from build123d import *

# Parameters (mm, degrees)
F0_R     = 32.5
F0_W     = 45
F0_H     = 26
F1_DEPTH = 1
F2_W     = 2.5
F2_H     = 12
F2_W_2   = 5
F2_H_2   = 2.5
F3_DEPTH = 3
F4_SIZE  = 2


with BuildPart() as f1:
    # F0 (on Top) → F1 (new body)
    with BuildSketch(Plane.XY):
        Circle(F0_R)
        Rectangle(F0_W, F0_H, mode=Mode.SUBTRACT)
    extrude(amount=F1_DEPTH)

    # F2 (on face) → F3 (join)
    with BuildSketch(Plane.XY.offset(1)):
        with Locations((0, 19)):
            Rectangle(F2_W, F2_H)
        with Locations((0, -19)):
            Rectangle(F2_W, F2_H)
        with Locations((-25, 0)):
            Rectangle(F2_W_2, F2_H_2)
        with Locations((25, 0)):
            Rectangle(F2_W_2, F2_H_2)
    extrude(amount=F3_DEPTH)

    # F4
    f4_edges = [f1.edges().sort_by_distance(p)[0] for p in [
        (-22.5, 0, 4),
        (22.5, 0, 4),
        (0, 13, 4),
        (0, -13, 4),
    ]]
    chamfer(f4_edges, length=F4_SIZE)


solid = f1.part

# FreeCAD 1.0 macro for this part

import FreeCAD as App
import Part
import Sketcher

V = App.Vector
Q = App.Units.Quantity


def edges_at(feature, points):
    """Names of the edges that pass closest to the given points."""
    edges = feature.Shape.Edges
    near = lambda p: min(range(len(edges)), key=lambda i: edges[i].distToShape(Part.Vertex(*p))[0])
    return sorted({f"Edge{near(p) + 1}" for p in points})

doc = App.newDocument("Part")
body = doc.addObject("PartDesign::Body", "Body")

# Sketch on XY plane
sketch1 = body.newObject("Sketcher::SketchObject", "Sketch")
sketch1.AttachmentSupport = (doc.getObject("XY_Plane"), [""])
sketch1.MapMode = "FlatFace"
sketch1.addGeometry([
    Part.Circle(V(0, 0, 0), V(0, 0, 1), 32),  # 0
    Part.LineSegment(V(22, -13, 0), V(-22, -13, 0)),  # 1
    Part.LineSegment(V(-22, -13, 0), V(-22, 13, 0)),  # 2
    Part.LineSegment(V(-22, 13, 0), V(22, 13, 0)),  # 3
    Part.LineSegment(V(22, 13, 0), V(22, -13, 0)),  # 4
], False)
sketch1.addConstraint([
    Sketcher.Constraint("Coincident", 1, 2, 2, 1),
    Sketcher.Constraint("Coincident", 2, 2, 3, 1),
    Sketcher.Constraint("Coincident", 3, 2, 4, 1),
    Sketcher.Constraint("Coincident", 4, 2, 1, 1),
    Sketcher.Constraint("Horizontal", 1),
    Sketcher.Constraint("Vertical", 2),
    Sketcher.Constraint("Horizontal", 3),
    Sketcher.Constraint("Vertical", 4),
    Sketcher.Constraint("Coincident", 0, 3, -1, 1),
    Sketcher.Constraint("Symmetric", 1, 2, 3, 2, -1, 1),
    Sketcher.Constraint("Diameter", 0, Q("65 mm")),
    Sketcher.Constraint("DistanceX", 1, 2, 1, 1, Q("45 mm")),
    Sketcher.Constraint("DistanceY", 2, 1, 2, 2, Q("26 mm")),
])
pad1 = body.newObject("PartDesign::Pad", "Pad")
pad1.Profile = sketch1
pad1.Length = 1

# Sketch on XY plane
sketch2 = body.newObject("Sketcher::SketchObject", "Sketch001")
sketch2.AttachmentSupport = (doc.getObject("XY_Plane"), [""])
sketch2.MapMode = "FlatFace"
sketch2.AttachmentOffset = App.Placement(V(0, 0, 1), App.Rotation())
sketch2.addGeometry([
    Part.LineSegment(V(-1.2, 25, 0), V(-1.2, 13, 0)),  # 0
    Part.LineSegment(V(-1.2, 13, 0), V(1.2, 13, 0)),  # 1
    Part.LineSegment(V(1.2, 13, 0), V(1.2, 25, 0)),  # 2
    Part.LineSegment(V(1.2, 25, 0), V(-1.2, 25, 0)),  # 3
    Part.LineSegment(V(-1.2, -13, 0), V(-1.2, -25, 0)),  # 4
    Part.LineSegment(V(-1.2, -25, 0), V(1.2, -25, 0)),  # 5
    Part.LineSegment(V(1.2, -25, 0), V(1.2, -13, 0)),  # 6
    Part.LineSegment(V(1.2, -13, 0), V(-1.2, -13, 0)),  # 7
    Part.LineSegment(V(-27.5, 1.2, 0), V(-27.5, -1.2, 0)),  # 8
    Part.LineSegment(V(-27.5, -1.2, 0), V(-22.5, -1.2, 0)),  # 9
    Part.LineSegment(V(-22.5, -1.2, 0), V(-22.5, 1.2, 0)),  # 10
    Part.LineSegment(V(-22.5, 1.2, 0), V(-27.5, 1.2, 0)),  # 11
    Part.LineSegment(V(22.5, 1.2, 0), V(22.5, -1.2, 0)),  # 12
    Part.LineSegment(V(22.5, -1.2, 0), V(27.5, -1.2, 0)),  # 13
    Part.LineSegment(V(27.5, -1.2, 0), V(27.5, 1.2, 0)),  # 14
    Part.LineSegment(V(27.5, 1.2, 0), V(22.5, 1.2, 0)),  # 15
], False)
sketch2.addConstraint([
    Sketcher.Constraint("Coincident", 0, 2, 1, 1),
    Sketcher.Constraint("Coincident", 1, 2, 2, 1),
    Sketcher.Constraint("Coincident", 2, 2, 3, 1),
    Sketcher.Constraint("Coincident", 3, 2, 0, 1),
    Sketcher.Constraint("Coincident", 4, 2, 5, 1),
    Sketcher.Constraint("Coincident", 5, 2, 6, 1),
    Sketcher.Constraint("Coincident", 6, 2, 7, 1),
    Sketcher.Constraint("Coincident", 7, 2, 4, 1),
    Sketcher.Constraint("Coincident", 8, 2, 9, 1),
    Sketcher.Constraint("Coincident", 9, 2, 10, 1),
    Sketcher.Constraint("Coincident", 10, 2, 11, 1),
    Sketcher.Constraint("Coincident", 11, 2, 8, 1),
    Sketcher.Constraint("Coincident", 12, 2, 13, 1),
    Sketcher.Constraint("Coincident", 13, 2, 14, 1),
    Sketcher.Constraint("Coincident", 14, 2, 15, 1),
    Sketcher.Constraint("Coincident", 15, 2, 12, 1),
    Sketcher.Constraint("Vertical", 0),
    Sketcher.Constraint("Horizontal", 1),
    Sketcher.Constraint("Vertical", 2),
    Sketcher.Constraint("Horizontal", 3),
    Sketcher.Constraint("Vertical", 4),
    Sketcher.Constraint("Horizontal", 5),
    Sketcher.Constraint("Vertical", 6),
    Sketcher.Constraint("Horizontal", 7),
    Sketcher.Constraint("Vertical", 8),
    Sketcher.Constraint("Horizontal", 9),
    Sketcher.Constraint("Vertical", 10),
    Sketcher.Constraint("Horizontal", 11),
    Sketcher.Constraint("Vertical", 12),
    Sketcher.Constraint("Horizontal", 13),
    Sketcher.Constraint("Vertical", 14),
    Sketcher.Constraint("Horizontal", 15),
    Sketcher.Constraint("Symmetric", 2, 2, 4, 2, -1, 1),
    Sketcher.Constraint("Symmetric", 0, 2, 6, 2, -1, 1),
    Sketcher.Constraint("Symmetric", 10, 2, 12, 2, -1, 1),
    Sketcher.Constraint("Symmetric", 8, 2, 14, 2, -1, 1),
    Sketcher.Constraint("Horizontal", 9, 2, 12, 2),
    Sketcher.Constraint("Vertical", 3, 2, 4, 2),
    Sketcher.Constraint("Equal", 7, 8),
    Sketcher.Constraint("DistanceX", 9, 1, 9, 2, Q("5 mm")),
    Sketcher.Constraint("DistanceY", 0, 2, 0, 1, Q("12 mm")),
    Sketcher.Constraint("DistanceX", 1, 1, 1, 2, Q("2.5 mm")),
    Sketcher.Constraint("DistanceY", -1, 1, 0, 2, Q("13 mm")),
    Sketcher.Constraint("DistanceX", 8, 2, -1, 1, Q("27.5 mm")),
])
pad2 = body.newObject("PartDesign::Pad", "Pad001")
pad2.Profile = sketch2
pad2.Length = 3
doc.recompute()

chamfer = body.newObject("PartDesign::Chamfer", "Chamfer")
chamfer.Base = (pad2, edges_at(pad2, [
    (-22.5, 0, 4),
    (22.5, 0, 4),
    (0, 13, 4),
    (0, -13, 4),
]))
chamfer.Size = 2

doc.recompute()
